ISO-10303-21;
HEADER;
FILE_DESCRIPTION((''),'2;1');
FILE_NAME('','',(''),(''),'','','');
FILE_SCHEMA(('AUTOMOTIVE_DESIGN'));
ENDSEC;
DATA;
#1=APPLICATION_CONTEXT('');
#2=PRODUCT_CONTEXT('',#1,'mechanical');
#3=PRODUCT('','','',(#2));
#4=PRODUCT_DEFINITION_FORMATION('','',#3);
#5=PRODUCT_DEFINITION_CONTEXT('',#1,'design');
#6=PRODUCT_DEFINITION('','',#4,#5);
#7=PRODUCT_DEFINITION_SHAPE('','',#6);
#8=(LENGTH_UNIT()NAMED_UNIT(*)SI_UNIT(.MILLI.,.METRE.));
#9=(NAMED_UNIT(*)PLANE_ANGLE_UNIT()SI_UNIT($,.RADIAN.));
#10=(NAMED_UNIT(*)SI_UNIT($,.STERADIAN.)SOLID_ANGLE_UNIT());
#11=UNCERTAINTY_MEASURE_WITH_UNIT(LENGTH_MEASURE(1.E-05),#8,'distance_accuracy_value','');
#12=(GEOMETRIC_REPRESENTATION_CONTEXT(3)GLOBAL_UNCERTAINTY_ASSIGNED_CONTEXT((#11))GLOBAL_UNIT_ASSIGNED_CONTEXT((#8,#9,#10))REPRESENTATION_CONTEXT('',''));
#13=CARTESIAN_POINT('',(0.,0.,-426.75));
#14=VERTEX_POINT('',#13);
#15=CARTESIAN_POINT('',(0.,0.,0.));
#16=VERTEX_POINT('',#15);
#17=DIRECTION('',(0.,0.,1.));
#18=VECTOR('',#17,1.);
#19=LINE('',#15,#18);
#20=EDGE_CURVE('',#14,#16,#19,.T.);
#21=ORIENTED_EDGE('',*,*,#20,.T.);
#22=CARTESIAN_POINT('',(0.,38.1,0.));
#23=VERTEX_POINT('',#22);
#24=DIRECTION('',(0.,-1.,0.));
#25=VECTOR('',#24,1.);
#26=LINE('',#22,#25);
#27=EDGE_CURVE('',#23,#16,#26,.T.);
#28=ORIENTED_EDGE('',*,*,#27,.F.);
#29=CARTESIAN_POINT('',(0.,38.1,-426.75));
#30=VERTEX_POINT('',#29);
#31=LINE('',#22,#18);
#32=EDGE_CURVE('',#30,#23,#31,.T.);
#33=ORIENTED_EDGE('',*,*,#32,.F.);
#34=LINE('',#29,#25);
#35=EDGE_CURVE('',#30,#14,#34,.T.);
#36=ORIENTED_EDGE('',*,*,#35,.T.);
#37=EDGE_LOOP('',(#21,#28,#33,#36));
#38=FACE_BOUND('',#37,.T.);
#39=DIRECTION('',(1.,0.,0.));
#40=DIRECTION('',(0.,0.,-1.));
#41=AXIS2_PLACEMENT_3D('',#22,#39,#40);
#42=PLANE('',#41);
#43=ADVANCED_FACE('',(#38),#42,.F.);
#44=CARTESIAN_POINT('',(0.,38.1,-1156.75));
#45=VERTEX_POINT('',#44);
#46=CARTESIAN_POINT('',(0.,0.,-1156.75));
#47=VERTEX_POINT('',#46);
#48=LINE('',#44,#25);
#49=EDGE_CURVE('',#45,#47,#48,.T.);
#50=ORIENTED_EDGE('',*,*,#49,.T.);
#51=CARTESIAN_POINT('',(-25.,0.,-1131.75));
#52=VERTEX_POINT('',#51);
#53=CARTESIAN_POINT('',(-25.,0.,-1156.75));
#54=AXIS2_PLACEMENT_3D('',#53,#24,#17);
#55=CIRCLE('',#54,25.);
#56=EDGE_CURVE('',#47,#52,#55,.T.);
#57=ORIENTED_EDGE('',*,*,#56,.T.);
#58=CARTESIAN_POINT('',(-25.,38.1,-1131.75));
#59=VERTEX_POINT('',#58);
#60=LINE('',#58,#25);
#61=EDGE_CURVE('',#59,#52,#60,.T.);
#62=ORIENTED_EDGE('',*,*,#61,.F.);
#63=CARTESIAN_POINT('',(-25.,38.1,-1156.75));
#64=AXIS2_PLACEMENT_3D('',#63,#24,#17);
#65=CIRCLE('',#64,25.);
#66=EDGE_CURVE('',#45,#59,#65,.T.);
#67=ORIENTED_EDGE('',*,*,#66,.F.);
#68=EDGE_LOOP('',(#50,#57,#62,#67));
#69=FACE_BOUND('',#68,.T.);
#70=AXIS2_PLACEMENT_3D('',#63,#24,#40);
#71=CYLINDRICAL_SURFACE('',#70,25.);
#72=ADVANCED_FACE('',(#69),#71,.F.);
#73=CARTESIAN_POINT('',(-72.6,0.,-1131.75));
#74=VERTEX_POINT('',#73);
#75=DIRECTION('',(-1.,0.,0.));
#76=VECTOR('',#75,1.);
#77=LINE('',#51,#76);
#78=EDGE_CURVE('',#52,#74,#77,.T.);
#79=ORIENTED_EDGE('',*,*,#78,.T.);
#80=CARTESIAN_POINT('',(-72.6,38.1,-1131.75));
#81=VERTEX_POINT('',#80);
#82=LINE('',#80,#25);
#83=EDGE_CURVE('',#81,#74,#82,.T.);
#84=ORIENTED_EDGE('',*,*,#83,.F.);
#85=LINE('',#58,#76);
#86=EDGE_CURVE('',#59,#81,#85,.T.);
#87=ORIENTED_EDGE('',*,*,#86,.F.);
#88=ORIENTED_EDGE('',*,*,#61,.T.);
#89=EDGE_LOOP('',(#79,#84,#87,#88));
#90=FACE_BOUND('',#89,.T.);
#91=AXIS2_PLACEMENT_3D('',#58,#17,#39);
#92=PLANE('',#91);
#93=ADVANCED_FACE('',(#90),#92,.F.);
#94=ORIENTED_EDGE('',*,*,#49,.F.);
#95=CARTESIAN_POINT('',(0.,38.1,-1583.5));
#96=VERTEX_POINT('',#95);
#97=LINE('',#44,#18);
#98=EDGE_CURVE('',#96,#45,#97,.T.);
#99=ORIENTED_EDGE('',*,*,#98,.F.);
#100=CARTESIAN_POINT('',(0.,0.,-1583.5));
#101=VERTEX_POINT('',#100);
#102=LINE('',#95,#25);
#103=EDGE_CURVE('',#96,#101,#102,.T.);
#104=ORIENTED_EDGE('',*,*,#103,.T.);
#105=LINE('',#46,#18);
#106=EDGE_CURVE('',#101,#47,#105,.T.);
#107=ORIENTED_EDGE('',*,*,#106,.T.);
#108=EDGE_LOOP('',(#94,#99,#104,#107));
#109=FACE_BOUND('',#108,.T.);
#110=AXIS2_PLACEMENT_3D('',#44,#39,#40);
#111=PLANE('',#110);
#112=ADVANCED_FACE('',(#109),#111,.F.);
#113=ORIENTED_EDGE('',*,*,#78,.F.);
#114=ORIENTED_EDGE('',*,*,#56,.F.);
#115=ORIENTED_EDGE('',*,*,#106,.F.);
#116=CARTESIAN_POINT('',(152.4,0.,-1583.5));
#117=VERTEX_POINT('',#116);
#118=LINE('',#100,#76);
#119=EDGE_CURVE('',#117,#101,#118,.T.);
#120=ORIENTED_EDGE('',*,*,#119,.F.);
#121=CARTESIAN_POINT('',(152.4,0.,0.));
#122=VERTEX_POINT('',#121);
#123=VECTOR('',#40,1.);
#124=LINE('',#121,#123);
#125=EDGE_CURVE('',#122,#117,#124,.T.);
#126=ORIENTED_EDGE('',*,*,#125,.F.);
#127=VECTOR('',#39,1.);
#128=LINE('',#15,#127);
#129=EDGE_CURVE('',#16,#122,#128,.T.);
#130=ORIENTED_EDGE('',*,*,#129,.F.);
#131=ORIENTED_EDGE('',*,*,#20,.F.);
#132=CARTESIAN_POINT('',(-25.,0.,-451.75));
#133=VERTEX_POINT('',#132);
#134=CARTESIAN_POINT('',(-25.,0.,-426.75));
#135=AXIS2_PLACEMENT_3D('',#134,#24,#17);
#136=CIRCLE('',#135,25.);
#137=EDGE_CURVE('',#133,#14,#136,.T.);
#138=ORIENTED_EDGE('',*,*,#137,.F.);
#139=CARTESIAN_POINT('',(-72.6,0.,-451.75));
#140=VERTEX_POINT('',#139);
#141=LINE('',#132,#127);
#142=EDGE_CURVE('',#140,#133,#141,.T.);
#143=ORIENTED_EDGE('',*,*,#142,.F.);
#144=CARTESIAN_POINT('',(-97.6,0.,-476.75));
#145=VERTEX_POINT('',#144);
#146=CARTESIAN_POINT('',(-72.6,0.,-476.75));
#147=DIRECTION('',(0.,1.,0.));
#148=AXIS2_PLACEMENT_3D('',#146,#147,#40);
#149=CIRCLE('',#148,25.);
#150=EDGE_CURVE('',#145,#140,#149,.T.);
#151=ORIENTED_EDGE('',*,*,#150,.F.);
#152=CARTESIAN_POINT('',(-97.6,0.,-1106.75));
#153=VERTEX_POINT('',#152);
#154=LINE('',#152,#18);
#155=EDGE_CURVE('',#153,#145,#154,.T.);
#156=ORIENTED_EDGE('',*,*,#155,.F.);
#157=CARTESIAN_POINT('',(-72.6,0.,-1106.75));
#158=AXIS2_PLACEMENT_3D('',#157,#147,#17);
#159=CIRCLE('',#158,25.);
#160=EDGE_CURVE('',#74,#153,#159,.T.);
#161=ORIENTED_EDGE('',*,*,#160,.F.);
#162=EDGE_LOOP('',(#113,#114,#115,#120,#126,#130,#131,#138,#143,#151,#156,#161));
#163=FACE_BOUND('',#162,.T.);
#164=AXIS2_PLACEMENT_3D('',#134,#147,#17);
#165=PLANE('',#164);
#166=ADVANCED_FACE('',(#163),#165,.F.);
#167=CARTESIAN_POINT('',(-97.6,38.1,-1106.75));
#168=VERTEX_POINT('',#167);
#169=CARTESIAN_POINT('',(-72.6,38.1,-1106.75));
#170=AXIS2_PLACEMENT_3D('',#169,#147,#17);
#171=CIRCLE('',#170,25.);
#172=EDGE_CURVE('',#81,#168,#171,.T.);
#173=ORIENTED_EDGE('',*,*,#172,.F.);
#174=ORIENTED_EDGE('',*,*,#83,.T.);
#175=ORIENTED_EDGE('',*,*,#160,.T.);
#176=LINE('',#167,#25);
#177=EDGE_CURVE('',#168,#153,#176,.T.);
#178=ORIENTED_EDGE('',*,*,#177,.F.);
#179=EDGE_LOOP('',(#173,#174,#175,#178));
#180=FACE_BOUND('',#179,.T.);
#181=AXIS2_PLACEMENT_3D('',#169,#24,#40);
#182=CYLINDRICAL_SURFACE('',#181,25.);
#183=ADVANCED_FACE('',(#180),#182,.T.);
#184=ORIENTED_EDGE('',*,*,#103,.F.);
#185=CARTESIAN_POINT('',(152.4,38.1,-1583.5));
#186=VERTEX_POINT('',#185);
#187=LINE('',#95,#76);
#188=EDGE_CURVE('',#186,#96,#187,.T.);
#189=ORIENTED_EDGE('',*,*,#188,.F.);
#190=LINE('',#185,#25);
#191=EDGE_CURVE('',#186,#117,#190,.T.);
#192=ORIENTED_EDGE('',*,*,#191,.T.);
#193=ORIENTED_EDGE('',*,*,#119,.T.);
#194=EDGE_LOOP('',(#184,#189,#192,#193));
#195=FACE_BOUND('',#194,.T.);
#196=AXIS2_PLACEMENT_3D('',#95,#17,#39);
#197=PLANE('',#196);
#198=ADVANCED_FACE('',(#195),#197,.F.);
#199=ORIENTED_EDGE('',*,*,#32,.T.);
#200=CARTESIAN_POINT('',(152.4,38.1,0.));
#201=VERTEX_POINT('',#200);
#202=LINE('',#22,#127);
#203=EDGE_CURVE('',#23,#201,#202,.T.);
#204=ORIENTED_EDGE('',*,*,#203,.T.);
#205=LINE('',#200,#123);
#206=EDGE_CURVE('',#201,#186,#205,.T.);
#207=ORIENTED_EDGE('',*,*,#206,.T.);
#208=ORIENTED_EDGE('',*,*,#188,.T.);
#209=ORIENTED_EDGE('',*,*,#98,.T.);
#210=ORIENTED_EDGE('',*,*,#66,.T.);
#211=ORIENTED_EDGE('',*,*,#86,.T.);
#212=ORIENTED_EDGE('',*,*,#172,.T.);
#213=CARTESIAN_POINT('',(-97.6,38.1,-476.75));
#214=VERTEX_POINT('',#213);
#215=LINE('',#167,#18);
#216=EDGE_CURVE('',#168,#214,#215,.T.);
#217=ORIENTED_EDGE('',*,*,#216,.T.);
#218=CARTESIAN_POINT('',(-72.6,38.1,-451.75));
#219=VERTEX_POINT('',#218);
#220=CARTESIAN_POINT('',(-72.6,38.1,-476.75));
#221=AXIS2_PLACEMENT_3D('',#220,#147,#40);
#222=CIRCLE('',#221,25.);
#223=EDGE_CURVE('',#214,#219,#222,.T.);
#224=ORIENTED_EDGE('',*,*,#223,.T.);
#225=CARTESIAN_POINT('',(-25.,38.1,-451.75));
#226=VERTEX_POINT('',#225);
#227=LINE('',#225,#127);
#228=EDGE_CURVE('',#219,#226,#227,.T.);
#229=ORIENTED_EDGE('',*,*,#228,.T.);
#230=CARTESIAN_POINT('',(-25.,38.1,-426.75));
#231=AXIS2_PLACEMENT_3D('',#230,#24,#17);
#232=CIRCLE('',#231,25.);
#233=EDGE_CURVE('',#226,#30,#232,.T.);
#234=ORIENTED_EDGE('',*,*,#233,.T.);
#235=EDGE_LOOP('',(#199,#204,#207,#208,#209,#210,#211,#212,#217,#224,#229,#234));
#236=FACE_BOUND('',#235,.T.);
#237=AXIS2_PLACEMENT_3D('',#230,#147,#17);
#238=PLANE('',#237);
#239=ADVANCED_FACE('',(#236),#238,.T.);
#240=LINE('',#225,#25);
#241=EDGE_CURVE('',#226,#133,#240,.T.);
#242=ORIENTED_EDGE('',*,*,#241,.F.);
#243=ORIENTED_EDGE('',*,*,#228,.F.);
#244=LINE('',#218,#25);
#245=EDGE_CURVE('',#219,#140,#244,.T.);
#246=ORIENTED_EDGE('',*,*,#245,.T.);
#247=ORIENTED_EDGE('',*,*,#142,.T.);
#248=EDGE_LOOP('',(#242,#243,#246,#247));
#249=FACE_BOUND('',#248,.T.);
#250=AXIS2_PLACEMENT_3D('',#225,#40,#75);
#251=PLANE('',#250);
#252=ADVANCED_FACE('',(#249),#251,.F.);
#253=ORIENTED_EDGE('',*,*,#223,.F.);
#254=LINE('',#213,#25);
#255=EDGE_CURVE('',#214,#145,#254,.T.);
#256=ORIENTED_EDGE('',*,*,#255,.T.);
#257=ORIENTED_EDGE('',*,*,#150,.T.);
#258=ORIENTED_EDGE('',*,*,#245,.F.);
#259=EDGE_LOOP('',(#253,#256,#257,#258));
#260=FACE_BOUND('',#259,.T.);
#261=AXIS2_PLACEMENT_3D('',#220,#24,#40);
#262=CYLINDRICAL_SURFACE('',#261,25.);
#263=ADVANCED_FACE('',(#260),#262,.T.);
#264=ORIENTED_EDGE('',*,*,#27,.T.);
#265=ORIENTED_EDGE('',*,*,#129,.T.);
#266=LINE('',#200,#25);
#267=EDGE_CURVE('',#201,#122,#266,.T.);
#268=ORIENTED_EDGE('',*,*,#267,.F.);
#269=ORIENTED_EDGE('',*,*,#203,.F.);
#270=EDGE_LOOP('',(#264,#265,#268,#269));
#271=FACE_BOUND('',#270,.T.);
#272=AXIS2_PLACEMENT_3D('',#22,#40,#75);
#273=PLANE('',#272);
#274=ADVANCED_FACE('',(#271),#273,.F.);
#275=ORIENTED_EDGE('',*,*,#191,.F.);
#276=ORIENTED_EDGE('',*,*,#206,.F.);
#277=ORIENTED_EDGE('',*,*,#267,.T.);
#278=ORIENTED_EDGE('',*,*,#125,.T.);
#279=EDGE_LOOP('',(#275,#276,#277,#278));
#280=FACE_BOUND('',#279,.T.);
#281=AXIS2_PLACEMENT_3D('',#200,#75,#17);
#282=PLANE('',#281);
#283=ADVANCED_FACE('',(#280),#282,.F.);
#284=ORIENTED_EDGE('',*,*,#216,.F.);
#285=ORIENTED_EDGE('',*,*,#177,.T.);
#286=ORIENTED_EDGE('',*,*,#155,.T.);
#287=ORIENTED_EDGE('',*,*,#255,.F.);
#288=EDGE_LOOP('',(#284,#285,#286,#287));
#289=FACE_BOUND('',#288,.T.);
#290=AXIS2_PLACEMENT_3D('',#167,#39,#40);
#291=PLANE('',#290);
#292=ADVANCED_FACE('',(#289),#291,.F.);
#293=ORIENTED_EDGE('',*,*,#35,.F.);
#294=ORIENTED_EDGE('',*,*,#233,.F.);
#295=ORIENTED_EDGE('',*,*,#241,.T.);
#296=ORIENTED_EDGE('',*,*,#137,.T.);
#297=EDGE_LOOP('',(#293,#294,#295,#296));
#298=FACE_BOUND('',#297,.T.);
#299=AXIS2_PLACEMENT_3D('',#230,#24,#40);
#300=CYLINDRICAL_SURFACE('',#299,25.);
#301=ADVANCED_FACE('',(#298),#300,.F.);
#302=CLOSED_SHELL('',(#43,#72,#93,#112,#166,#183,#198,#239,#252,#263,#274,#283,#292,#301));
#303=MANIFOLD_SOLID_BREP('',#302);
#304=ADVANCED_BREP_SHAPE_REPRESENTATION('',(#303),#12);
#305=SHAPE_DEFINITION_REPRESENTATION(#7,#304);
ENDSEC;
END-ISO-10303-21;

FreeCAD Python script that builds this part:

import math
import FreeCAD as App
import Part
import Sketcher

V = App.Vector
Q = App.Units.Quantity

doc = App.newDocument("Part")
body = doc.addObject("PartDesign::Body", "Body")

# Sketch on XZ plane
sketch1 = doc.addObject("Sketcher::SketchObject", "Sketch")
body.addObject(sketch1)
sketch1.AttachmentSupport = (doc.XZ_Plane, [""])
sketch1.MapMode = "FlatFace"
sketch1.addGeometry(Part.LineSegment(V(0, -1584, 0), V(0, -1157, 0)), False)
sketch1.addGeometry(Part.ArcOfCircle(Part.Circle(V(-25, -1157, 0), V(0, 0, 1), 25), math.radians(0), math.radians(90)), False)
sketch1.addGeometry(Part.LineSegment(V(-25, -1132, 0), V(-73, -1132, 0)), False)
sketch1.addGeometry(Part.ArcOfCircle(Part.Circle(V(-73, -1107, 0), V(0, 0, 1), 25), math.radians(180), math.radians(270)), False)
sketch1.addGeometry(Part.LineSegment(V(-98, -1107, 0), V(-98, -477, 0)), False)
sketch1.addGeometry(Part.ArcOfCircle(Part.Circle(V(-73, -477, 0), V(0, 0, 1), 25), math.radians(90), math.radians(180)), False)
sketch1.addGeometry(Part.LineSegment(V(-73, -452, 0), V(-25, -452, 0)), False)
sketch1.addGeometry(Part.ArcOfCircle(Part.Circle(V(-25, -427, 0), V(0, 0, 1), 25), math.radians(-90), math.radians(0)), False)
sketch1.addGeometry(Part.LineSegment(V(0, -427, 0), V(0, 0, 0)), False)
sketch1.addGeometry(Part.LineSegment(V(0, 0, 0), V(152, 0, 0)), False)
sketch1.addGeometry(Part.LineSegment(V(152, 0, 0), V(152, -1584, 0)), False)
sketch1.addGeometry(Part.LineSegment(V(152, -1584, 0), V(0, -1584, 0)), False)
sketch1.addConstraint(Sketcher.Constraint("Tangent", 0, 2, 1, 1))
sketch1.addConstraint(Sketcher.Constraint("Tangent", 1, 2, 2, 1))
sketch1.addConstraint(Sketcher.Constraint("Tangent", 2, 2, 3, 2))
sketch1.addConstraint(Sketcher.Constraint("Tangent", 3, 1, 4, 1))
sketch1.addConstraint(Sketcher.Constraint("Tangent", 4, 2, 5, 2))
sketch1.addConstraint(Sketcher.Constraint("Tangent", 5, 1, 6, 1))
sketch1.addConstraint(Sketcher.Constraint("Tangent", 6, 2, 7, 1))
sketch1.addConstraint(Sketcher.Constraint("Tangent", 7, 2, 8, 1))
sketch1.addConstraint(Sketcher.Constraint("Coincident", 8, 2, 9, 1))
sketch1.addConstraint(Sketcher.Constraint("Coincident", 9, 2, 10, 1))
sketch1.addConstraint(Sketcher.Constraint("Coincident", 10, 2, 11, 1))
sketch1.addConstraint(Sketcher.Constraint("Coincident", 11, 2, 0, 1))
sketch1.addConstraint(Sketcher.Constraint("Vertical", 0))
sketch1.addConstraint(Sketcher.Constraint("Horizontal", 2))
sketch1.addConstraint(Sketcher.Constraint("Vertical", 4))
sketch1.addConstraint(Sketcher.Constraint("Horizontal", 6))
sketch1.addConstraint(Sketcher.Constraint("Vertical", 8))
sketch1.addConstraint(Sketcher.Constraint("Horizontal", 9))
sketch1.addConstraint(Sketcher.Constraint("Vertical", 10))
sketch1.addConstraint(Sketcher.Constraint("Horizontal", 11))
sketch1.addConstraint(Sketcher.Constraint("Coincident", 8, 2, -1, 1))
sketch1.addConstraint(Sketcher.Constraint("Equal", 1, 3))
sketch1.addConstraint(Sketcher.Constraint("Equal", 3, 5))
sketch1.addConstraint(Sketcher.Constraint("Equal", 5, 7))
sketch1.addConstraint(Sketcher.Constraint("PointOnObject", 0, 2, -2))
sketch1.addConstraint(Sketcher.Constraint("Equal", 0, 8))
sketch1.addConstraint(Sketcher.Constraint("Radius", 1, Q("25 mm")))
sketch1.addConstraint(Sketcher.Constraint("DistanceY", 4, 1, 4, 2, Q("630 mm")))
sketch1.addConstraint(Sketcher.Constraint("DistanceX", 2, 2, 2, 1, Q("47.6 mm")))
sketch1.addConstraint(Sketcher.Constraint("DistanceX", 9, 1, 9, 2, Q("152.4 mm")))
sketch1.addConstraint(Sketcher.Constraint("DistanceY", 10, 2, 10, 1, Q("1583.5 mm")))
pad1 = doc.addObject("PartDesign::Pad", "Pad")
body.addObject(pad1)
pad1.Profile = sketch1
pad1.Length = 38.1
pad1.Reversed = True

doc.recompute()
